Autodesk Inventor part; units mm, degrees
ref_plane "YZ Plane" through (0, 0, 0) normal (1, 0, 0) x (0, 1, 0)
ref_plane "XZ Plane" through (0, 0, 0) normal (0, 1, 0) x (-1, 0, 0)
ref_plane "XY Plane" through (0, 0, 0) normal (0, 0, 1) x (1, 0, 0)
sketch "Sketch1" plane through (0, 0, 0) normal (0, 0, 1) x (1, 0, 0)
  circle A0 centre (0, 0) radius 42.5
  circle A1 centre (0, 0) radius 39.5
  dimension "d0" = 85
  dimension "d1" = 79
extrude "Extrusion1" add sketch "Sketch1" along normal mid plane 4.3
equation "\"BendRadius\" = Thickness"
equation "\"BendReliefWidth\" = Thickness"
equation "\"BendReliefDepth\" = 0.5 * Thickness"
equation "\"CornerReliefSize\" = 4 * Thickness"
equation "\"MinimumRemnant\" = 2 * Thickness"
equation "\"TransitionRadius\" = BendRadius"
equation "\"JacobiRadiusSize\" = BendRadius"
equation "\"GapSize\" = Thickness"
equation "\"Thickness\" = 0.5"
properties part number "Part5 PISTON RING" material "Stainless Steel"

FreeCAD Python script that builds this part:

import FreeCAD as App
import Part
import Sketcher

doc = App.newDocument("Part")
params = doc.addObject("Spreadsheet::Sheet", "Params")
for row, (alias, value) in enumerate([
    ("sketch1_diameter", "85 mm"),
    ("sketch1_diameter2", "79 mm"),
    ("pad1_length", "4.3 mm"),
], start=1):
    params.set(f"A{row}", alias)
    params.set(f"B{row}", "=" + value)
    params.setAlias(f"B{row}", alias)

body = doc.addObject("PartDesign::Body", "Body")

sketch1 = body.newObject("Sketcher::SketchObject", "Sketch")
sketch1.AttachmentSupport = (doc.getObject("XY_Plane"), [""])
sketch1.MapMode = "FlatFace"
sketch1.addGeometry([
    Part.Circle(App.Vector(0, 0, 0), App.Vector(0, 0, 1), 42),
    Part.Circle(App.Vector(0, 0, 0), App.Vector(0, 0, 1), 40),
], False)
sketch1.addConstraint([
    Sketcher.Constraint("Coincident", 0, 3, -1, 1),
    Sketcher.Constraint("Coincident", 1, 3, -1, 1),
    Sketcher.Constraint("Diameter", 0, 85.0),
    Sketcher.Constraint("Diameter", 1, 79.0),
])
sketch1.setExpression("Constraints[2]", "Params.sketch1_diameter")
sketch1.setExpression("Constraints[3]", "Params.sketch1_diameter2")
pad1 = body.newObject("PartDesign::Pad", "Pad")
pad1.Profile = sketch1
pad1.setExpression("Length", "Params.pad1_length")
pad1.Midplane = True

doc.recompute()
